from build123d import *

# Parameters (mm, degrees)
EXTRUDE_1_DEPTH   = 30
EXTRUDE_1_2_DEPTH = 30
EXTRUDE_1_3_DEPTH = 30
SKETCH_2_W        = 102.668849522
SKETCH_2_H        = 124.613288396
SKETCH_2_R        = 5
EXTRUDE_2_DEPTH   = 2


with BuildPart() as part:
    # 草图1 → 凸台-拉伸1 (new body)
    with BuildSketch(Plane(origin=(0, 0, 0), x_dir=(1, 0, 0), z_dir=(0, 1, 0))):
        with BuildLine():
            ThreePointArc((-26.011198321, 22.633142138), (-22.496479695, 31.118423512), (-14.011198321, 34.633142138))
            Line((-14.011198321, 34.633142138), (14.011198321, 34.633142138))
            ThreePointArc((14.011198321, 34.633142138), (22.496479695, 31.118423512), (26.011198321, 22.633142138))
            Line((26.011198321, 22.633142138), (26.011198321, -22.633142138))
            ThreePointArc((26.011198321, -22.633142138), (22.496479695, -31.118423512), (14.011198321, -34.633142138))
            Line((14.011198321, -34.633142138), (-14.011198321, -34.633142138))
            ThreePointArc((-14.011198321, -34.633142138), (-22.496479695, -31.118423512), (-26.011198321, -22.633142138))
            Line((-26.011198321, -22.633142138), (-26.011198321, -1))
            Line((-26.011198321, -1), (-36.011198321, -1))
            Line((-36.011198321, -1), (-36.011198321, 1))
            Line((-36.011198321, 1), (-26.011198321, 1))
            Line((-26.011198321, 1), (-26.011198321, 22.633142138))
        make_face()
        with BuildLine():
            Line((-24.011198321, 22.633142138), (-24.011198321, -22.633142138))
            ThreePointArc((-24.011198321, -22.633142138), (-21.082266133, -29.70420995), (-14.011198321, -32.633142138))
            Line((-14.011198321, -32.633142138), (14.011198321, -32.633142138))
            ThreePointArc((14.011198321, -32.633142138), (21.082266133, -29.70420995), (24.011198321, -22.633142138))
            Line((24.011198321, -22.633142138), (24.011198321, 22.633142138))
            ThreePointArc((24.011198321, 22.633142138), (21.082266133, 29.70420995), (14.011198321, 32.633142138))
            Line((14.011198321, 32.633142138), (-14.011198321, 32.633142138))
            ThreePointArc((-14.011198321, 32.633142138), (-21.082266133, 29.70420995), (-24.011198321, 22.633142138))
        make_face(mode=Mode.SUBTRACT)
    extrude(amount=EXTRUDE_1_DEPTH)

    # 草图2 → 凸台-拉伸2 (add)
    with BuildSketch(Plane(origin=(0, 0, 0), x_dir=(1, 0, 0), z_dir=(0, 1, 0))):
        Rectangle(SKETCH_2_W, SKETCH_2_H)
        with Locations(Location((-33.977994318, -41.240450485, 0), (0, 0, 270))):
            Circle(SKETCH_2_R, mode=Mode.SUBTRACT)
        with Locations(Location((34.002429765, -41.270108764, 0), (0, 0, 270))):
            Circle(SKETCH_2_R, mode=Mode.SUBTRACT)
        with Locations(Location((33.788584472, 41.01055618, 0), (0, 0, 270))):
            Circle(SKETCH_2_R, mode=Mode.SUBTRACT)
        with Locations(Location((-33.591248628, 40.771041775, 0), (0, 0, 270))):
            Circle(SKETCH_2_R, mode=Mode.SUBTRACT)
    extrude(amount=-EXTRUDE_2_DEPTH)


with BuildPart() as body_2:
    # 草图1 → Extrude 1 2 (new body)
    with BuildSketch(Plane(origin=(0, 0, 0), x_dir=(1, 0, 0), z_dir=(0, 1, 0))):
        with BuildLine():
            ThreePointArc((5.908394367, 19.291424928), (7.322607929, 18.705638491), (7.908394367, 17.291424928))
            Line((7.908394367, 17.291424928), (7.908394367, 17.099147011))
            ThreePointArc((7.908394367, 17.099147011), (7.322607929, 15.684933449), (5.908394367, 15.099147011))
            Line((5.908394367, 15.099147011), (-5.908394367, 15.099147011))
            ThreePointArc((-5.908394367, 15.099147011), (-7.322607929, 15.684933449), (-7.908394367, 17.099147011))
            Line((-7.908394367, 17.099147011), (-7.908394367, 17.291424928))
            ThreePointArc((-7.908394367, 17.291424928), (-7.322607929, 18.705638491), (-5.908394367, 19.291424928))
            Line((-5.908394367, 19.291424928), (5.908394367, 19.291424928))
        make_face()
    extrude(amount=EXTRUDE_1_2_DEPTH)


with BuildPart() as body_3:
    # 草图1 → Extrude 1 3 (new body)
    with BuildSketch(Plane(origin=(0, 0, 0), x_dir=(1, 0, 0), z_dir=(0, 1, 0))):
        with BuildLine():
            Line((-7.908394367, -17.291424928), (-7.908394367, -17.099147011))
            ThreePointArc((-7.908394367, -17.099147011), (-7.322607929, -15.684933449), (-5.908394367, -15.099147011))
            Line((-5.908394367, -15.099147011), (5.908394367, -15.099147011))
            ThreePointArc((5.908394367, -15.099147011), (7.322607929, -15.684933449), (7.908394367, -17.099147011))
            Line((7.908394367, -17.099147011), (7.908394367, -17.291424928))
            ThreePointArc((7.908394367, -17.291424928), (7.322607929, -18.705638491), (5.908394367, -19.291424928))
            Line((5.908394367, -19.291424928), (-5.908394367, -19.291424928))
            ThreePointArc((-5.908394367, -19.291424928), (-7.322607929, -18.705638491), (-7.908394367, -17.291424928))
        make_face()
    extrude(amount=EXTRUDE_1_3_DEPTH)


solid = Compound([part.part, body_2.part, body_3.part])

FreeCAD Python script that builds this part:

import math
import FreeCAD as App
import Part
import Sketcher


def add_polygon(sketch, points):
    """Adds a closed chain of lines whose ends are joined by coincident constraints."""
    first, n = sketch.GeometryCount, len(points)
    for a, b in zip(points, points[1:] + points[:1]):
        sketch.addGeometry(Part.LineSegment(App.Vector(*a, 0), App.Vector(*b, 0)), False)
    for i in range(n):
        sketch.addConstraint(Sketcher.Constraint("Coincident", first + i, 2, first + (i + 1) % n, 1))

doc = App.newDocument("Part")
params = doc.addObject("Spreadsheet::Sheet", "Params")
for row, (alias, value) in enumerate([
    ("sketch1_radius", "12 mm"),
    ("sketch1_radius2", "10 mm"),
    ("sketch1_width", "10 mm"),
    ("sketch1_height", "2 mm"),
    ("pad1_length", "30 mm"),
    ("sketch2_diameter", "10 mm"),
    ("pad2_length", "2 mm"),
    ("sketch3_radius", "2 mm"),
    ("pad3_length", "30 mm"),
    ("sketch4_radius", "2 mm"),
    ("pad4_length", "30 mm"),
], start=1):
    params.set(f"A{row}", alias)
    params.set(f"B{row}", "=" + value)
    params.setAlias(f"B{row}", alias)

body = doc.addObject("PartDesign::Body", "Body")

# Sketch on XZ plane
sketch1 = body.newObject("Sketcher::SketchObject", "Sketch")
sketch1.AttachmentSupport = (doc.getObject("XZ_Plane"), [""])
sketch1.MapMode = "FlatFace"
sketch1.addGeometry([
    Part.ArcOfCircle(Part.Circle(App.Vector(-14, -22.6, 0), App.Vector(0, 0, 1), 12), math.radians(-180), math.radians(-90)),  # 0
    Part.LineSegment(App.Vector(-26, -22.6, 0), App.Vector(-26, -1, 0)),  # 1
    Part.LineSegment(App.Vector(-26, -1, 0), App.Vector(-36, -1, 0)),  # 2
    Part.LineSegment(App.Vector(-36, -1, 0), App.Vector(-36, 1, 0)),  # 3
    Part.LineSegment(App.Vector(-36, 1, 0), App.Vector(-26, 1, 0)),  # 4
    Part.LineSegment(App.Vector(-26, 1, 0), App.Vector(-26, 22.6, 0)),  # 5
    Part.ArcOfCircle(Part.Circle(App.Vector(-14, 22.6, 0), App.Vector(0, 0, 1), 12), math.radians(90), math.radians(180)),  # 6
    Part.LineSegment(App.Vector(-14, 34.6, 0), App.Vector(14, 34.6, 0)),  # 7
    Part.ArcOfCircle(Part.Circle(App.Vector(14, 22.6, 0), App.Vector(0, 0, 1), 12), math.radians(0), math.radians(90)),  # 8
    Part.LineSegment(App.Vector(26, 22.6, 0), App.Vector(26, -22.6, 0)),  # 9
    Part.ArcOfCircle(Part.Circle(App.Vector(14, -22.6, 0), App.Vector(0, 0, 1), 12), math.radians(-90), math.radians(0)),  # 10
    Part.LineSegment(App.Vector(14, -34.6, 0), App.Vector(-14, -34.6, 0)),  # 11
    Part.ArcOfCircle(Part.Circle(App.Vector(-14, -22.6, 0), App.Vector(0, 0, 1), 10), math.radians(180), math.radians(270)),  # 12
    Part.LineSegment(App.Vector(-14, -32.6, 0), App.Vector(14, -32.6, 0)),  # 13
    Part.ArcOfCircle(Part.Circle(App.Vector(14, -22.6, 0), App.Vector(0, 0, 1), 10), math.radians(-90), math.radians(0)),  # 14
    Part.LineSegment(App.Vector(24, -22.6, 0), App.Vector(24, 22.6, 0)),  # 15
    Part.ArcOfCircle(Part.Circle(App.Vector(14, 22.6, 0), App.Vector(0, 0, 1), 10), math.radians(0), math.radians(90)),  # 16
    Part.LineSegment(App.Vector(14, 32.6, 0), App.Vector(-14, 32.6, 0)),  # 17
    Part.ArcOfCircle(Part.Circle(App.Vector(-14, 22.6, 0), App.Vector(0, 0, 1), 10), math.radians(90), math.radians(180)),  # 18
    Part.LineSegment(App.Vector(-24, 22.6, 0), App.Vector(-24, -22.6, 0)),  # 19
], False)
sketch1.addConstraint([
    Sketcher.Constraint("Tangent", 0, 1, 1, 1),
    Sketcher.Constraint("Coincident", 1, 2, 2, 1),
    Sketcher.Constraint("Coincident", 2, 2, 3, 1),
    Sketcher.Constraint("Coincident", 3, 2, 4, 1),
    Sketcher.Constraint("Coincident", 4, 2, 5, 1),
    Sketcher.Constraint("Tangent", 5, 2, 6, 2),
    Sketcher.Constraint("Tangent", 6, 1, 7, 1),
    Sketcher.Constraint("Tangent", 7, 2, 8, 2),
    Sketcher.Constraint("Tangent", 8, 1, 9, 1),
    Sketcher.Constraint("Tangent", 9, 2, 10, 2),
    Sketcher.Constraint("Tangent", 10, 1, 11, 1),
    Sketcher.Constraint("Tangent", 11, 2, 0, 2),
    Sketcher.Constraint("Tangent", 12, 2, 13, 1),
    Sketcher.Constraint("Tangent", 13, 2, 14, 1),
    Sketcher.Constraint("Tangent", 14, 2, 15, 1),
    Sketcher.Constraint("Tangent", 15, 2, 16, 1),
    Sketcher.Constraint("Tangent", 16, 2, 17, 1),
    Sketcher.Constraint("Tangent", 17, 2, 18, 1),
    Sketcher.Constraint("Tangent", 18, 2, 19, 1),
    Sketcher.Constraint("Tangent", 19, 2, 12, 1),
    Sketcher.Constraint("Vertical", 1),
    Sketcher.Constraint("Horizontal", 2),
    Sketcher.Constraint("Vertical", 3),
    Sketcher.Constraint("Horizontal", 4),
    Sketcher.Constraint("Vertical", 5),
    Sketcher.Constraint("Horizontal", 7),
    Sketcher.Constraint("Vertical", 9),
    Sketcher.Constraint("Horizontal", 11),
    Sketcher.Constraint("Horizontal", 13),
    Sketcher.Constraint("Vertical", 15),
    Sketcher.Constraint("Horizontal", 17),
    Sketcher.Constraint("Vertical", 19),
    Sketcher.Constraint("Coincident", 12, 3, 0, 3),
    Sketcher.Constraint("Coincident", 14, 3, 10, 3),
    Sketcher.Constraint("Coincident", 16, 3, 8, 3),
    Sketcher.Constraint("Coincident", 18, 3, 6, 3),
    Sketcher.Constraint("Equal", 0, 6),
    Sketcher.Constraint("Equal", 6, 8),
    Sketcher.Constraint("Equal", 8, 10),
    Sketcher.Constraint("Symmetric", 0, 3, 8, 3, -1, 1),
    Sketcher.Constraint("Equal", 1, 5),
    Sketcher.Constraint("Radius", 0, 12.0),
    Sketcher.Constraint("Radius", 12, 10.0),
    Sketcher.Constraint("DistanceX", 2, 2, 2, 1, 10.0),
    Sketcher.Constraint("DistanceY", 3, 1, 3, 2, 2.0),
    Sketcher.Constraint("DistanceX", 0, 3, -1, 1, 14.011198),
    Sketcher.Constraint("DistanceY", 1, 1, 1, 2, 21.633142),
])
sketch1.setExpression("Constraints[41]", "Params.sketch1_radius")
sketch1.setExpression("Constraints[42]", "Params.sketch1_radius2")
sketch1.setExpression("Constraints[43]", "Params.sketch1_width")
sketch1.setExpression("Constraints[44]", "Params.sketch1_height")
pad1 = body.newObject("PartDesign::Pad", "Pad")
pad1.Profile = sketch1
pad1.setExpression("Length", "Params.pad1_length")
pad1.Reversed = True

# Sketch on XZ plane
sketch2 = body.newObject("Sketcher::SketchObject", "Sketch001")
sketch2.AttachmentSupport = (doc.getObject("XZ_Plane"), [""])
sketch2.MapMode = "FlatFace"
add_polygon(sketch2, [(-51, -62), (-51, 62), (51, 62), (51, -62)])  # lines 0-3
sketch2.addGeometry(Part.Circle(App.Vector(-34, 41, 0), App.Vector(0, 0, 1), 5), False)  # 4
sketch2.addGeometry(Part.Circle(App.Vector(34, 41, 0), App.Vector(0, 0, 1), 5), False)  # 5
sketch2.addGeometry(Part.Circle(App.Vector(-34, -41, 0), App.Vector(0, 0, 1), 5), False)  # 6
sketch2.addGeometry(Part.Circle(App.Vector(34, -41, 0), App.Vector(0, 0, 1), 5), False)  # 7
sketch2.addConstraint([
    Sketcher.Constraint("Vertical", 0),
    Sketcher.Constraint("Horizontal", 1),
    Sketcher.Constraint("Vertical", 2),
    Sketcher.Constraint("Horizontal", 3),
    Sketcher.Constraint("Equal", 4, 5),
    Sketcher.Constraint("Equal", 5, 6),
    Sketcher.Constraint("Equal", 6, 7),
    Sketcher.Constraint("Symmetric", 0, 2, 2, 2, -1, 1),
    Sketcher.Constraint("Diameter", 4, 10.0),
    Sketcher.Constraint("DistanceX", 1, 1, 1, 2, 102.66885),
    Sketcher.Constraint("DistanceY", 0, 1, 0, 2, 124.613288),
    Sketcher.Constraint("DistanceY", 7, 3, 0, 2, 103.3172),
    Sketcher.Constraint("DistanceY", -1, 1, 4, 3, 41.24045),
    Sketcher.Constraint("DistanceX", -1, 1, 5, 3, 34.00243),
    Sketcher.Constraint("DistanceY", -1, 1, 5, 3, 41.270109),
    Sketcher.Constraint("DistanceX", 6, 3, -1, 1, 33.591249),
    Sketcher.Constraint("DistanceY", 6, 3, -1, 1, 40.771042),
    Sketcher.Constraint("DistanceX", 4, 3, 7, 3, 67.766579),
    Sketcher.Constraint("DistanceX", 0, 2, 4, 3, 17.35643),
])
sketch2.setExpression("Constraints[12]", "Params.sketch2_diameter")
pad2 = body.newObject("PartDesign::Pad", "Pad001")
pad2.Profile = sketch2
pad2.setExpression("Length", "Params.pad2_length")
body2 = doc.addObject("PartDesign::Body", "Body001")

# Sketch on XZ plane
sketch3 = body2.newObject("Sketcher::SketchObject", "Sketch002")
sketch3.AttachmentSupport = (doc.getObject("XZ_Plane001"), [""])
sketch3.MapMode = "FlatFace"
sketch3.addGeometry([
    Part.ArcOfCircle(Part.Circle(App.Vector(5.91, -17.29, 0), App.Vector(0, 0, 1), 2), math.radians(-90), math.radians(0)),  # 0
    Part.LineSegment(App.Vector(5.91, -19.29, 0), App.Vector(-5.91, -19.29, 0)),  # 1
    Part.ArcOfCircle(Part.Circle(App.Vector(-5.91, -17.29, 0), App.Vector(0, 0, 1), 2), math.radians(180), math.radians(270)),  # 2
    Part.LineSegment(App.Vector(-7.91, -17.29, 0), App.Vector(-7.91, -17.1, 0)),  # 3
    Part.ArcOfCircle(Part.Circle(App.Vector(-5.91, -17.1, 0), App.Vector(0, 0, 1), 2), math.radians(90), math.radians(180)),  # 4
    Part.LineSegment(App.Vector(-5.91, -15.1, 0), App.Vector(5.91, -15.1, 0)),  # 5
    Part.ArcOfCircle(Part.Circle(App.Vector(5.91, -17.1, 0), App.Vector(0, 0, 1), 2), math.radians(0), math.radians(90)),  # 6
    Part.LineSegment(App.Vector(7.91, -17.1, 0), App.Vector(7.91, -17.29, 0)),  # 7
], False)
sketch3.addConstraint([
    Sketcher.Constraint("Tangent", 0, 1, 1, 1),
    Sketcher.Constraint("Tangent", 1, 2, 2, 2),
    Sketcher.Constraint("Tangent", 2, 1, 3, 1),
    Sketcher.Constraint("Tangent", 3, 2, 4, 2),
    Sketcher.Constraint("Tangent", 4, 1, 5, 1),
    Sketcher.Constraint("Tangent", 5, 2, 6, 2),
    Sketcher.Constraint("Tangent", 6, 1, 7, 1),
    Sketcher.Constraint("Tangent", 7, 2, 0, 2),
    Sketcher.Constraint("Horizontal", 1),
    Sketcher.Constraint("Vertical", 3),
    Sketcher.Constraint("Horizontal", 5),
    Sketcher.Constraint("Vertical", 7),
    Sketcher.Constraint("Equal", 0, 2),
    Sketcher.Constraint("Equal", 2, 4),
    Sketcher.Constraint("Equal", 4, 6),
    Sketcher.Constraint("Radius", 0, 2.0),
    Sketcher.Constraint("DistanceX", 1, 2, 1, 1, 11.816789),
    Sketcher.Constraint("DistanceY", 3, 1, 3, 2, 0.192278),
    Sketcher.Constraint("DistanceX", -1, 1, 0, 3, 5.908394),
    Sketcher.Constraint("DistanceY", 0, 3, -1, 1, 17.291425),
])
sketch3.setExpression("Constraints[15]", "Params.sketch3_radius")
pad3 = body2.newObject("PartDesign::Pad", "Pad002")
pad3.Profile = sketch3
pad3.setExpression("Length", "Params.pad3_length")
pad3.Reversed = True
body3 = doc.addObject("PartDesign::Body", "Body002")

# Sketch on XZ plane
sketch4 = body3.newObject("Sketcher::SketchObject", "Sketch003")
sketch4.AttachmentSupport = (doc.getObject("XZ_Plane002"), [""])
sketch4.MapMode = "FlatFace"
sketch4.addGeometry([
    Part.LineSegment(App.Vector(-7.91, 17.1, 0), App.Vector(-7.91, 17.29, 0)),  # 0
    Part.ArcOfCircle(Part.Circle(App.Vector(-5.91, 17.29, 0), App.Vector(0, 0, 1), 2), math.radians(90), math.radians(180)),  # 1
    Part.LineSegment(App.Vector(-5.91, 19.29, 0), App.Vector(5.91, 19.29, 0)),  # 2
    Part.ArcOfCircle(Part.Circle(App.Vector(5.91, 17.29, 0), App.Vector(0, 0, 1), 2), math.radians(0), math.radians(90)),  # 3
    Part.LineSegment(App.Vector(7.91, 17.29, 0), App.Vector(7.91, 17.1, 0)),  # 4
    Part.ArcOfCircle(Part.Circle(App.Vector(5.91, 17.1, 0), App.Vector(0, 0, 1), 2), math.radians(-90), math.radians(0)),  # 5
    Part.LineSegment(App.Vector(5.91, 15.1, 0), App.Vector(-5.91, 15.1, 0)),  # 6
    Part.ArcOfCircle(Part.Circle(App.Vector(-5.91, 17.1, 0), App.Vector(0, 0, 1), 2), math.radians(-180), math.radians(-90)),  # 7
], False)
sketch4.addConstraint([
    Sketcher.Constraint("Tangent", 0, 2, 1, 2),
    Sketcher.Constraint("Tangent", 1, 1, 2, 1),
    Sketcher.Constraint("Tangent", 2, 2, 3, 2),
    Sketcher.Constraint("Tangent", 3, 1, 4, 1),
    Sketcher.Constraint("Tangent", 4, 2, 5, 2),
    Sketcher.Constraint("Tangent", 5, 1, 6, 1),
    Sketcher.Constraint("Tangent", 6, 2, 7, 2),
    Sketcher.Constraint("Tangent", 7, 1, 0, 1),
    Sketcher.Constraint("Vertical", 0),
    Sketcher.Constraint("Horizontal", 2),
    Sketcher.Constraint("Vertical", 4),
    Sketcher.Constraint("Horizontal", 6),
    Sketcher.Constraint("Equal", 1, 3),
    Sketcher.Constraint("Equal", 3, 5),
    Sketcher.Constraint("Equal", 5, 7),
    Sketcher.Constraint("Radius", 1, 2.0),
    Sketcher.Constraint("DistanceX", 2, 1, 2, 2, 11.816789),
    Sketcher.Constraint("DistanceY", 0, 1, 0, 2, 0.192278),
    Sketcher.Constraint("DistanceX", 1, 3, -1, 1, 5.908394),
    Sketcher.Constraint("DistanceY", -1, 1, 1, 3, 17.291425),
])
sketch4.setExpression("Constraints[15]", "Params.sketch4_radius")
pad4 = body3.newObject("PartDesign::Pad", "Pad003")
pad4.Profile = sketch4
pad4.setExpression("Length", "Params.pad4_length")
pad4.Reversed = True

doc.recompute()
